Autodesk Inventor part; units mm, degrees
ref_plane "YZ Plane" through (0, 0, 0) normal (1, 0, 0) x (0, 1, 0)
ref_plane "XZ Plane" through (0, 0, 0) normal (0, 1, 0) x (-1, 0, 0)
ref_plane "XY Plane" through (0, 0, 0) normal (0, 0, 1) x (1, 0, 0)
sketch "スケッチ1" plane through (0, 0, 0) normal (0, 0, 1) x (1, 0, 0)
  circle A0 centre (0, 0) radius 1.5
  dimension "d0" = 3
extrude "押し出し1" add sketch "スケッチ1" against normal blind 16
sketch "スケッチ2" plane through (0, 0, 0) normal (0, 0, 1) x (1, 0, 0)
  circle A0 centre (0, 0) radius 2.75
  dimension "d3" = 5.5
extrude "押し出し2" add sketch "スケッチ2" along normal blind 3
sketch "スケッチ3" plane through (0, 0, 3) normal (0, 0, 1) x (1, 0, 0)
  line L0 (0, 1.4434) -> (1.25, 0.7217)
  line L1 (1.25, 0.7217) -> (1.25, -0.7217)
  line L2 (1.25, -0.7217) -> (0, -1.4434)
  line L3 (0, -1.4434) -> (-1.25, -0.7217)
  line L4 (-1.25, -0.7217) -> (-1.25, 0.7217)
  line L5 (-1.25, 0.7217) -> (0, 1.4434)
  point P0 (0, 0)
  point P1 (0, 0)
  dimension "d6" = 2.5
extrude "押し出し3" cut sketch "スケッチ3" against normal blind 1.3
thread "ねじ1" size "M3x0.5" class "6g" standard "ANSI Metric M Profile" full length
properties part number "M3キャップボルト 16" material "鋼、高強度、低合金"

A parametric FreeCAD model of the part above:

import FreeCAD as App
import Part
import Sketcher
Q = App.Units.Quantity


def add_polygon(sketch, points):
    """Adds a closed chain of lines whose ends are joined by coincident constraints."""
    first, n = sketch.GeometryCount, len(points)
    for a, b in zip(points, points[1:] + points[:1]):
        sketch.addGeometry(Part.LineSegment(App.Vector(*a, 0), App.Vector(*b, 0)), False)
    for i in range(n):
        sketch.addConstraint(Sketcher.Constraint("Coincident", first + i, 2, first + (i + 1) % n, 1))

doc = App.newDocument("Part")
body = doc.addObject("PartDesign::Body", "Body")

sketch1 = doc.addObject("Sketcher::SketchObject", "Sketch")
body.addObject(sketch1)
sketch1.AttachmentSupport = (doc.XY_Plane, [""])
sketch1.MapMode = "FlatFace"
sketch1.addGeometry(Part.Circle(App.Vector(0, 0, 0), App.Vector(0, 0, 1), 1.5), False)
sketch1.addConstraint(Sketcher.Constraint("Coincident", 0, 3, -1, 1))
sketch1.addConstraint(Sketcher.Constraint("Diameter", 0, Q("3 mm")))
pad1 = doc.addObject("PartDesign::Pad", "Pad")
body.addObject(pad1)
pad1.Profile = sketch1
pad1.Length = 16
pad1.Reversed = True

sketch2 = doc.addObject("Sketcher::SketchObject", "Sketch001")
body.addObject(sketch2)
sketch2.AttachmentSupport = (doc.XY_Plane, [""])
sketch2.MapMode = "FlatFace"
sketch2.addGeometry(Part.Circle(App.Vector(0, 0, 0), App.Vector(0, 0, 1), 2.75), False)
sketch2.addConstraint(Sketcher.Constraint("Coincident", 0, 3, -1, 1))
sketch2.addConstraint(Sketcher.Constraint("Diameter", 0, Q("5.5 mm")))
pad2 = doc.addObject("PartDesign::Pad", "Pad001")
body.addObject(pad2)
pad2.Profile = sketch2
pad2.Length = 3

sketch3 = doc.addObject("Sketcher::SketchObject", "Sketch002")
body.addObject(sketch3)
sketch3.AttachmentSupport = (doc.XY_Plane, [""])
sketch3.MapMode = "FlatFace"
sketch3.AttachmentOffset = App.Placement(App.Vector(0, 0, 3), App.Rotation())
add_polygon(sketch3, [(1.25, 0.7217), (0, 1.4434), (-1.25, 0.7217), (-1.25, -0.7217), (0, -1.4434), (1.25, -0.7217)])
sketch3.addConstraint(Sketcher.Constraint("Vertical", 2))
sketch3.addConstraint(Sketcher.Constraint("Vertical", 5))
sketch3.addConstraint(Sketcher.Constraint("Symmetric", 0, 2, 3, 2, -1, 1))
sketch3.addConstraint(Sketcher.Constraint("Symmetric", 1, 2, 4, 2, -1, 1))
sketch3.addConstraint(Sketcher.Constraint("PointOnObject", 0, 2, -2))
sketch3.addConstraint(Sketcher.Constraint("Parallel", 0, 3))
sketch3.addConstraint(Sketcher.Constraint("Horizontal", 2, 2, 4, 2))
sketch3.addConstraint(Sketcher.Constraint("DistanceX", 2, 2, 4, 2, Q("2.5 mm")))
sketch3.addConstraint(Sketcher.Constraint("Angle", 0, Q("149.9996 deg")))
sketch3.addConstraint(Sketcher.Constraint("DistanceY", 2, 2, 2, 1, Q("1.4434 mm")))
pocket1 = doc.addObject("PartDesign::Pocket", "Pocket")
body.addObject(pocket1)
pocket1.Profile = sketch3
pocket1.Length = 1.3

doc.recompute()
